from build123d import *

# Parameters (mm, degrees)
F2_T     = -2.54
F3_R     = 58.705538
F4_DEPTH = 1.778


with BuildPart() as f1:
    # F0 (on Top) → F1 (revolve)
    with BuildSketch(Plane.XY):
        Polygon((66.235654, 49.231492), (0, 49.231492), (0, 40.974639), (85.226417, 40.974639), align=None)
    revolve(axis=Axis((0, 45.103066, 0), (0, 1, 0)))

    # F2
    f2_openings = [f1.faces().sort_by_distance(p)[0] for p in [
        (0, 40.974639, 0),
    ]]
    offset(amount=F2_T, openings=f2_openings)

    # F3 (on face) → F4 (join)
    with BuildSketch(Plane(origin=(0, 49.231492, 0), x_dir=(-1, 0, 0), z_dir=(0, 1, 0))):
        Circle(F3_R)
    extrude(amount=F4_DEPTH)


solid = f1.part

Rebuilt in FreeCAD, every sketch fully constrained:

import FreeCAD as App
import Part
import Sketcher
from FreeCAD import Vector
Q = App.Units.Quantity


def faces_at(feature, points):
    """Names of the faces that lie closest to the given points."""
    faces = feature.Shape.Faces
    near = lambda p: min(range(len(faces)), key=lambda i: faces[i].distToShape(Part.Vertex(*p))[0])
    return sorted({f"Face{near(p) + 1}" for p in points})


def add_polygon(sketch, points):
    """Adds a closed chain of lines whose ends are joined by coincident constraints."""
    first, n = sketch.GeometryCount, len(points)
    for a, b in zip(points, points[1:] + points[:1]):
        sketch.addGeometry(Part.LineSegment(App.Vector(*a, 0), App.Vector(*b, 0)), False)
    for i in range(n):
        sketch.addConstraint(Sketcher.Constraint("Coincident", first + i, 2, first + (i + 1) % n, 1))

doc = App.newDocument("Part")
body = doc.addObject("PartDesign::Body", "Body")

# Sketch on XY plane
sketch1 = body.newObject("Sketcher::SketchObject", "Sketch")
sketch1.AttachmentSupport = (doc.getObject("XY_Plane"), [""])
sketch1.MapMode = "FlatFace"
add_polygon(sketch1, [(66.235654, 49.231492), (0, 49.231492), (0, 40.974639), (85.226417, 40.974639)])  # lines 0-3
sketch1.addConstraint(Sketcher.Constraint("Horizontal", 0))
sketch1.addConstraint(Sketcher.Constraint("Vertical", 1))
sketch1.addConstraint(Sketcher.Constraint("Horizontal", 2))
sketch1.addConstraint(Sketcher.Constraint("PointOnObject", 0, 2, -2))
sketch1.addConstraint(Sketcher.Constraint("DistanceX", 0, 2, 0, 1, Q("66.235654 mm")))
sketch1.addConstraint(Sketcher.Constraint("DistanceX", 2, 1, 2, 2, Q("85.226417 mm")))
sketch1.addConstraint(Sketcher.Constraint("DistanceY", 1, 2, 1, 1, Q("8.256853 mm")))
sketch1.addConstraint(Sketcher.Constraint("DistanceY", -1, 1, 1, 2, Q("40.974639 mm")))
revolution = body.newObject("PartDesign::Revolution", "Revolution")
revolution.Profile = sketch1
revolution.ReferenceAxis = (sketch1, ["V_Axis"])
revolution.Angle = 360
doc.recompute()

thickness = body.newObject("PartDesign::Thickness", "Thickness")
thickness.Base = (revolution, faces_at(revolution, [(0, 40.975, 0)]))
thickness.Value = Q("0.1 in")
thickness.Reversed = True
thickness.Join = "Arc"

# Sketch on XZ plane
sketch2 = body.newObject("Sketcher::SketchObject", "Sketch001")
sketch2.AttachmentSupport = (doc.getObject("XZ_Plane"), [""])
sketch2.MapMode = "FlatFace"
sketch2.AttachmentOffset = App.Placement(Vector(0, 0, -49.231492), App.Rotation())
sketch2.addGeometry(Part.Circle(Vector(0, 0, 0), Vector(0, 0, 1), 58.705538), False)
sketch2.addConstraint(Sketcher.Constraint("Coincident", 0, 3, -1, 1))
sketch2.addConstraint(Sketcher.Constraint("Diameter", 0, Q("117.411076 mm")))
pad1 = body.newObject("PartDesign::Pad", "Pad")
pad1.Profile = sketch2
pad1.Length = Q("0.07 in")
pad1.Reversed = True

doc.recompute()
